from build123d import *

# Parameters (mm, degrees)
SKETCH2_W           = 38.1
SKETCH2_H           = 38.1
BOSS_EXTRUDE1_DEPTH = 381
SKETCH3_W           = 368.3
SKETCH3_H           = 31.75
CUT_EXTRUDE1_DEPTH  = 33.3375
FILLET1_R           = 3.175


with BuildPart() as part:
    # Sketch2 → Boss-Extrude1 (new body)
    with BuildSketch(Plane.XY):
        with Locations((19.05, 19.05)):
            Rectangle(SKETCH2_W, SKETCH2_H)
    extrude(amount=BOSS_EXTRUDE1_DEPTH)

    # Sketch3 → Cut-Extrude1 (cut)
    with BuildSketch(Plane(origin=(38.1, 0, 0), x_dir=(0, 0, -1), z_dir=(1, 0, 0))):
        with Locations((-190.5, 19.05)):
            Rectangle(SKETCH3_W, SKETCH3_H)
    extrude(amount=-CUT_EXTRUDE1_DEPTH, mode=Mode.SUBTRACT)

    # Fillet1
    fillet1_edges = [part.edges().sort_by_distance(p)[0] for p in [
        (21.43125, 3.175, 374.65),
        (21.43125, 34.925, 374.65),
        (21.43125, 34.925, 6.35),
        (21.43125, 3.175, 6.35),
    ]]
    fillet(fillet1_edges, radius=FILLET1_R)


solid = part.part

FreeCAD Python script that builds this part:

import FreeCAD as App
import Part
import Sketcher
from FreeCAD import Vector
Q = App.Units.Quantity


def edges_at(feature, points):
    """Names of the edges that pass closest to the given points."""
    edges = feature.Shape.Edges
    near = lambda p: min(range(len(edges)), key=lambda i: edges[i].distToShape(Part.Vertex(*p))[0])
    return sorted({f"Edge{near(p) + 1}" for p in points})

doc = App.newDocument("Part")
body = doc.addObject("PartDesign::Body", "Body")

sketch1 = doc.addObject("Sketcher::SketchObject", "Sketch")
body.addObject(sketch1)
sketch1.AttachmentSupport = (doc.XY_Plane, [""])
sketch1.MapMode = "FlatFace"
sketch1.addGeometry([
    Part.LineSegment(Vector(0, 38, 0), Vector(0, 0, 0)),
    Part.LineSegment(Vector(0, 0, 0), Vector(38, 0, 0)),
    Part.LineSegment(Vector(38, 0, 0), Vector(38, 38, 0)),
    Part.LineSegment(Vector(38, 38, 0), Vector(0, 38, 0)),
], False)
sketch1.addConstraint([
    Sketcher.Constraint("Coincident", 0, 2, 1, 1),
    Sketcher.Constraint("Coincident", 1, 2, 2, 1),
    Sketcher.Constraint("Coincident", 2, 2, 3, 1),
    Sketcher.Constraint("Coincident", 3, 2, 0, 1),
    Sketcher.Constraint("Vertical", 0),
    Sketcher.Constraint("Horizontal", 1),
    Sketcher.Constraint("Vertical", 2),
    Sketcher.Constraint("Horizontal", 3),
    Sketcher.Constraint("Coincident", 0, 2, -1, 1),
    Sketcher.Constraint("Equal", 3, 0),
    Sketcher.Constraint("DistanceX", 1, 1, 1, 2, Q("1.5 in")),
])
pad1 = doc.addObject("PartDesign::Pad", "Pad")
body.addObject(pad1)
pad1.Profile = sketch1
pad1.Length = Q("15 in")

sketch2 = doc.addObject("Sketcher::SketchObject", "Sketch001")
body.addObject(sketch2)
sketch2.AttachmentSupport = (doc.YZ_Plane, [""])
sketch2.MapMode = "FlatFace"
sketch2.AttachmentOffset = App.Placement(Vector(0, 0, 1.5 * 25.4), App.Rotation())
sketch2.addGeometry([
    Part.LineSegment(Vector(35, 375, 0), Vector(3, 375, 0)),
    Part.LineSegment(Vector(3, 375, 0), Vector(3, 6, 0)),
    Part.LineSegment(Vector(3, 6, 0), Vector(35, 6, 0)),
    Part.LineSegment(Vector(35, 6, 0), Vector(35, 375, 0)),
], False)
sketch2.addConstraint([
    Sketcher.Constraint("Coincident", 0, 2, 1, 1),
    Sketcher.Constraint("Coincident", 1, 2, 2, 1),
    Sketcher.Constraint("Coincident", 2, 2, 3, 1),
    Sketcher.Constraint("Coincident", 3, 2, 0, 1),
    Sketcher.Constraint("Horizontal", 0),
    Sketcher.Constraint("Vertical", 1),
    Sketcher.Constraint("Horizontal", 2),
    Sketcher.Constraint("Vertical", 3),
    Sketcher.Constraint("DistanceY", 1, 2, 1, 1, Q("14.5 in")),
    Sketcher.Constraint("DistanceX", 0, 2, 0, 1, Q("1.25 in")),
    Sketcher.Constraint("DistanceY", -1, 1, 0, 2, Q("14.75 in")),
    Sketcher.Constraint("DistanceX", -1, 1, 0, 2, Q("0.125 in")),
])
pocket1 = doc.addObject("PartDesign::Pocket", "Pocket")
body.addObject(pocket1)
pocket1.Profile = sketch2
pocket1.Length = Q("1.3125 in")
doc.recompute()

fillet = doc.addObject("PartDesign::Fillet", "Fillet")
body.addObject(fillet)
fillet.Base = (pocket1, edges_at(pocket1, [
    (21.431, 3.175, 374.65),
    (21.431, 34.925, 374.65),
    (21.431, 34.925, 6.35),
    (21.431, 3.175, 6.35),
]))
fillet.Radius = Q("0.125 in")

doc.recompute()
